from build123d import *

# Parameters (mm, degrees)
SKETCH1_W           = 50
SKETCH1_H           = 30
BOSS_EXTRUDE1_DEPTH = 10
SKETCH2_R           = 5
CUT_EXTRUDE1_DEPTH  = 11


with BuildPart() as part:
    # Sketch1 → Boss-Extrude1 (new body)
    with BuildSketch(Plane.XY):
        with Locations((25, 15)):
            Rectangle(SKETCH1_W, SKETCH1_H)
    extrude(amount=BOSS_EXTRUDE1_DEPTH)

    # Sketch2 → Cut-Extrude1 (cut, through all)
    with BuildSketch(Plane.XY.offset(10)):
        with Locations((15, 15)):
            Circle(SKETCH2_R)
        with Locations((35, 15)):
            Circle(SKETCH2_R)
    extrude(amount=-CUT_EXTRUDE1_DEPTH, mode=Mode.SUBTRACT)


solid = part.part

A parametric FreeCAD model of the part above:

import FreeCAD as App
import Part
import Sketcher

V = App.Vector
Q = App.Units.Quantity

doc = App.newDocument("Part")
params = doc.addObject("Spreadsheet::Sheet", "Params")
for row, (alias, value) in enumerate([
    ("sketch1_width", "50 mm"),
    ("sketch1_height", "30 mm"),
    ("pad1_length", "10 mm"),
    ("sketch2_diameter", "10 mm"),
], start=1):
    params.set(f"A{row}", alias)
    params.set(f"B{row}", "=" + value)
    params.setAlias(f"B{row}", alias)

body = doc.addObject("PartDesign::Body", "Body")

# Sketch on XY plane
sketch1 = body.newObject("Sketcher::SketchObject", "Sketch")
sketch1.AttachmentSupport = (doc.getObject("XY_Plane"), [""])
sketch1.MapMode = "FlatFace"
sketch1.addGeometry([
    Part.LineSegment(V(0, 30, 0), V(0, 0, 0)),
    Part.LineSegment(V(0, 0, 0), V(50, 0, 0)),
    Part.LineSegment(V(50, 0, 0), V(50, 30, 0)),
    Part.LineSegment(V(50, 30, 0), V(0, 30, 0)),
], False)
sketch1.addConstraint([
    Sketcher.Constraint("Coincident", 0, 2, 1, 1),
    Sketcher.Constraint("Coincident", 1, 2, 2, 1),
    Sketcher.Constraint("Coincident", 2, 2, 3, 1),
    Sketcher.Constraint("Coincident", 3, 2, 0, 1),
    Sketcher.Constraint("Vertical", 0),
    Sketcher.Constraint("Horizontal", 1),
    Sketcher.Constraint("Vertical", 2),
    Sketcher.Constraint("Horizontal", 3),
    Sketcher.Constraint("Coincident", 0, 2, -1, 1),
    Sketcher.Constraint("DistanceX", 1, 1, 1, 2, Q("50 mm")),
    Sketcher.Constraint("DistanceY", 0, 2, 0, 1, Q("30 mm")),
])
sketch1.setExpression("Constraints[9]", "Params.sketch1_width")
sketch1.setExpression("Constraints[10]", "Params.sketch1_height")
pad1 = body.newObject("PartDesign::Pad", "Pad")
pad1.Profile = sketch1
pad1.setExpression("Length", "Params.pad1_length")

# Sketch on XY plane
sketch2 = body.newObject("Sketcher::SketchObject", "Sketch001")
sketch2.AttachmentSupport = (doc.getObject("XY_Plane"), [""])
sketch2.MapMode = "FlatFace"
sketch2.AttachmentOffset = App.Placement(V(0, 0, 10), App.Rotation())
sketch2.addGeometry([
    Part.Circle(V(15, 15, 0), V(0, 0, 1), 5),
    Part.Circle(V(35, 15, 0), V(0, 0, 1), 5),
], False)
sketch2.addConstraint([
    Sketcher.Constraint("Equal", 0, 1),
    Sketcher.Constraint("Horizontal", 0, 3, 1, 3),
    Sketcher.Constraint("Diameter", 0, Q("10 mm")),
    Sketcher.Constraint("DistanceX", -1, 1, 0, 3, Q("15 mm")),
    Sketcher.Constraint("DistanceY", -1, 1, 0, 3, Q("15 mm")),
    Sketcher.Constraint("DistanceX", -1, 1, 1, 3, Q("35 mm")),
])
sketch2.setExpression("Constraints[2]", "Params.sketch2_diameter")
pocket1 = body.newObject("PartDesign::Pocket", "Pocket")
pocket1.Profile = sketch2
pocket1.Type = "ThroughAll"

doc.recompute()
